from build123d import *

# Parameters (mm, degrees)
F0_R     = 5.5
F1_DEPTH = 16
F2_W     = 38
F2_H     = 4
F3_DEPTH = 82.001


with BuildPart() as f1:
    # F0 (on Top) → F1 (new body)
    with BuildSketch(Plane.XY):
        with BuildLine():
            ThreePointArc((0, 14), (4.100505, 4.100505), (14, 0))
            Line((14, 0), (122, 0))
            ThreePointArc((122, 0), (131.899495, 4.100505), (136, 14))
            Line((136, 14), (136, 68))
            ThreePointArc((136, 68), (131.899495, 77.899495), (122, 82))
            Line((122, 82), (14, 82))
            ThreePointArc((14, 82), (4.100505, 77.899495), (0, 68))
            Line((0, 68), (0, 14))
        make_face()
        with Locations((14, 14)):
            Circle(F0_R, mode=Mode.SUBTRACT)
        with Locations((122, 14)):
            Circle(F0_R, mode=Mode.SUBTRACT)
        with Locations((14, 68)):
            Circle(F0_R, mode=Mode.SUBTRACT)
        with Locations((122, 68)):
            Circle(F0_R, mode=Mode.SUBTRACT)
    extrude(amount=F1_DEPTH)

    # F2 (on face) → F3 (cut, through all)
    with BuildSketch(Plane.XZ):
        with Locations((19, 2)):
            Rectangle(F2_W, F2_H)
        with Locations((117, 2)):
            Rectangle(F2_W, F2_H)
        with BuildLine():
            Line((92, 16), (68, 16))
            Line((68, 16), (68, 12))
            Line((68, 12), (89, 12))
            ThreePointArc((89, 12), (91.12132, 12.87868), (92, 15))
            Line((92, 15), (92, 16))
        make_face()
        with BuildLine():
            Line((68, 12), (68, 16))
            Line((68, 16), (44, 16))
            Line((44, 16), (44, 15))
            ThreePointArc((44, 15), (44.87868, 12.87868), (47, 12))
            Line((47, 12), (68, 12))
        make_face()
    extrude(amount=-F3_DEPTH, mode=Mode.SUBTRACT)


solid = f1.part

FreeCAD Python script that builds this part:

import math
import FreeCAD as App
import Part
import Sketcher
from FreeCAD import Vector
Q = App.Units.Quantity

doc = App.newDocument("Part")
params = doc.addObject("Spreadsheet::Sheet", "Params")
for row, (alias, value) in enumerate([
    ("sketch1_diameter", "11 mm"),
    ("sketch1_radius", "14 mm"),
    ("sketch1_width", "108 mm"),
    ("sketch1_height", "54 mm"),
    ("pad1_length", "16 mm"),
    ("sketch2_radius", "3.000001 mm"),
    ("sketch2_width", "38 mm"),
    ("sketch2_width2", "48 mm"),
    ("sketch2_height", "4 mm"),
    ("sketch2_height2", "1 mm"),
], start=1):
    params.set(f"A{row}", alias)
    params.set(f"B{row}", "=" + value)
    params.setAlias(f"B{row}", alias)

body = doc.addObject("PartDesign::Body", "Body")

# Sketch on XY plane
sketch1 = body.newObject("Sketcher::SketchObject", "Sketch")
sketch1.AttachmentSupport = (doc.getObject("XY_Plane"), [""])
sketch1.MapMode = "FlatFace"
sketch1.addGeometry(Part.ArcOfCircle(Part.Circle(Vector(14, 14, 0), Vector(0, 0, 1), 14), math.radians(180), math.radians(270)), False)
sketch1.addGeometry(Part.LineSegment(Vector(14, 0, 0), Vector(122, 0, 0)), False)
sketch1.addGeometry(Part.ArcOfCircle(Part.Circle(Vector(122, 14, 0), Vector(0, 0, 1), 14), math.radians(-90), math.radians(0)), False)
sketch1.addGeometry(Part.LineSegment(Vector(136, 14, 0), Vector(136, 68, 0)), False)
sketch1.addGeometry(Part.ArcOfCircle(Part.Circle(Vector(122, 68, 0), Vector(0, 0, 1), 14), math.radians(0), math.radians(90)), False)
sketch1.addGeometry(Part.LineSegment(Vector(122, 82, 0), Vector(14, 82, 0)), False)
sketch1.addGeometry(Part.ArcOfCircle(Part.Circle(Vector(14, 68, 0), Vector(0, 0, 1), 14), math.radians(90), math.radians(180)), False)
sketch1.addGeometry(Part.LineSegment(Vector(0, 68, 0), Vector(0, 14, 0)), False)
sketch1.addGeometry(Part.Circle(Vector(14, 14, 0), Vector(0, 0, 1), 6), False)
sketch1.addGeometry(Part.Circle(Vector(122, 14, 0), Vector(0, 0, 1), 6), False)
sketch1.addGeometry(Part.Circle(Vector(14, 68, 0), Vector(0, 0, 1), 6), False)
sketch1.addGeometry(Part.Circle(Vector(122, 68, 0), Vector(0, 0, 1), 6), False)
sketch1.addConstraint(Sketcher.Constraint("Tangent", 0, 2, 1, 1))
sketch1.addConstraint(Sketcher.Constraint("Tangent", 1, 2, 2, 1))
sketch1.addConstraint(Sketcher.Constraint("Tangent", 2, 2, 3, 1))
sketch1.addConstraint(Sketcher.Constraint("Tangent", 3, 2, 4, 1))
sketch1.addConstraint(Sketcher.Constraint("Tangent", 4, 2, 5, 1))
sketch1.addConstraint(Sketcher.Constraint("Tangent", 5, 2, 6, 1))
sketch1.addConstraint(Sketcher.Constraint("Tangent", 6, 2, 7, 1))
sketch1.addConstraint(Sketcher.Constraint("Tangent", 7, 2, 0, 1))
sketch1.addConstraint(Sketcher.Constraint("Horizontal", 1))
sketch1.addConstraint(Sketcher.Constraint("Vertical", 3))
sketch1.addConstraint(Sketcher.Constraint("Horizontal", 5))
sketch1.addConstraint(Sketcher.Constraint("Vertical", 7))
sketch1.addConstraint(Sketcher.Constraint("Coincident", 8, 3, 0, 3))
sketch1.addConstraint(Sketcher.Constraint("Coincident", 9, 3, 2, 3))
sketch1.addConstraint(Sketcher.Constraint("Coincident", 10, 3, 6, 3))
sketch1.addConstraint(Sketcher.Constraint("Coincident", 11, 3, 4, 3))
sketch1.addConstraint(Sketcher.Constraint("Equal", 0, 2))
sketch1.addConstraint(Sketcher.Constraint("Equal", 2, 4))
sketch1.addConstraint(Sketcher.Constraint("Equal", 4, 6))
sketch1.addConstraint(Sketcher.Constraint("Equal", 8, 9))
sketch1.addConstraint(Sketcher.Constraint("Equal", 9, 10))
sketch1.addConstraint(Sketcher.Constraint("Equal", 10, 11))
sketch1.addConstraint(Sketcher.Constraint("PointOnObject", 0, 2, -1))
sketch1.addConstraint(Sketcher.Constraint("PointOnObject", 6, 2, -2))
sketch1.addConstraint(Sketcher.Constraint("Diameter", 8, Q("11 mm")))
sketch1.addConstraint(Sketcher.Constraint("Radius", 0, Q("14 mm")))
sketch1.addConstraint(Sketcher.Constraint("DistanceX", 1, 1, 1, 2, Q("108 mm")))
sketch1.addConstraint(Sketcher.Constraint("DistanceY", 3, 1, 3, 2, Q("54 mm")))
sketch1.setExpression("Constraints[24]", "Params.sketch1_diameter")
sketch1.setExpression("Constraints[25]", "Params.sketch1_radius")
sketch1.setExpression("Constraints[26]", "Params.sketch1_width")
sketch1.setExpression("Constraints[27]", "Params.sketch1_height")
pad1 = body.newObject("PartDesign::Pad", "Pad")
pad1.Profile = sketch1
pad1.setExpression("Length", "Params.pad1_length")

# Sketch on XZ plane
sketch2 = body.newObject("Sketcher::SketchObject", "Sketch001")
sketch2.AttachmentSupport = (doc.getObject("XZ_Plane"), [""])
sketch2.MapMode = "FlatFace"
sketch2.addGeometry(Part.LineSegment(Vector(0, 4, 0), Vector(0, 0, 0)), False)
sketch2.addGeometry(Part.LineSegment(Vector(0, 0, 0), Vector(38, 0, 0)), False)
sketch2.addGeometry(Part.LineSegment(Vector(38, 0, 0), Vector(38, 4, 0)), False)
sketch2.addGeometry(Part.LineSegment(Vector(38, 4, 0), Vector(0, 4, 0)), False)
sketch2.addGeometry(Part.LineSegment(Vector(98, 4, 0), Vector(98, 0, 0)), False)
sketch2.addGeometry(Part.LineSegment(Vector(98, 0, 0), Vector(136, 0, 0)), False)
sketch2.addGeometry(Part.LineSegment(Vector(136, 0, 0), Vector(136, 4, 0)), False)
sketch2.addGeometry(Part.LineSegment(Vector(136, 4, 0), Vector(98, 4, 0)), False)
sketch2.addGeometry(Part.LineSegment(Vector(92, 16, 0), Vector(44, 16, 0)), False)
sketch2.addGeometry(Part.LineSegment(Vector(44, 16, 0), Vector(44, 15, 0)), False)
sketch2.addGeometry(Part.ArcOfCircle(Part.Circle(Vector(47, 15, 0), Vector(0, 0, 1), 3), math.radians(-180), math.radians(-90)), False)
sketch2.addGeometry(Part.LineSegment(Vector(47, 12, 0), Vector(89, 12, 0)), False)
sketch2.addGeometry(Part.ArcOfCircle(Part.Circle(Vector(89, 15, 0), Vector(0, 0, 1), 3), math.radians(-90), math.radians(0)), False)
sketch2.addGeometry(Part.LineSegment(Vector(92, 15, 0), Vector(92, 16, 0)), False)
sketch2.addConstraint(Sketcher.Constraint("Coincident", 0, 2, 1, 1))
sketch2.addConstraint(Sketcher.Constraint("Coincident", 1, 2, 2, 1))
sketch2.addConstraint(Sketcher.Constraint("Coincident", 2, 2, 3, 1))
sketch2.addConstraint(Sketcher.Constraint("Coincident", 3, 2, 0, 1))
sketch2.addConstraint(Sketcher.Constraint("Coincident", 4, 2, 5, 1))
sketch2.addConstraint(Sketcher.Constraint("Coincident", 5, 2, 6, 1))
sketch2.addConstraint(Sketcher.Constraint("Coincident", 6, 2, 7, 1))
sketch2.addConstraint(Sketcher.Constraint("Coincident", 7, 2, 4, 1))
sketch2.addConstraint(Sketcher.Constraint("Coincident", 8, 2, 9, 1))
sketch2.addConstraint(Sketcher.Constraint("Tangent", 9, 2, 10, 1))
sketch2.addConstraint(Sketcher.Constraint("Tangent", 10, 2, 11, 1))
sketch2.addConstraint(Sketcher.Constraint("Tangent", 11, 2, 12, 1))
sketch2.addConstraint(Sketcher.Constraint("Tangent", 12, 2, 13, 1))
sketch2.addConstraint(Sketcher.Constraint("Coincident", 13, 2, 8, 1))
sketch2.addConstraint(Sketcher.Constraint("Vertical", 0))
sketch2.addConstraint(Sketcher.Constraint("Horizontal", 1))
sketch2.addConstraint(Sketcher.Constraint("Vertical", 2))
sketch2.addConstraint(Sketcher.Constraint("Horizontal", 3))
sketch2.addConstraint(Sketcher.Constraint("Vertical", 4))
sketch2.addConstraint(Sketcher.Constraint("Horizontal", 5))
sketch2.addConstraint(Sketcher.Constraint("Vertical", 6))
sketch2.addConstraint(Sketcher.Constraint("Horizontal", 7))
sketch2.addConstraint(Sketcher.Constraint("Horizontal", 8))
sketch2.addConstraint(Sketcher.Constraint("Vertical", 9))
sketch2.addConstraint(Sketcher.Constraint("Horizontal", 11))
sketch2.addConstraint(Sketcher.Constraint("Vertical", 13))
sketch2.addConstraint(Sketcher.Constraint("Coincident", 0, 2, -1, 1))
sketch2.addConstraint(Sketcher.Constraint("Equal", 10, 12))
sketch2.addConstraint(Sketcher.Constraint("PointOnObject", 4, 2, -1))
sketch2.addConstraint(Sketcher.Constraint("Horizontal", 3, 2, 6, 2))
sketch2.addConstraint(Sketcher.Constraint("Equal", 3, 5))
sketch2.addConstraint(Sketcher.Constraint("Radius", 10, Q("3.000001 mm")))
sketch2.addConstraint(Sketcher.Constraint("DistanceX", 1, 1, 1, 2, Q("38 mm")))
sketch2.addConstraint(Sketcher.Constraint("DistanceX", 8, 2, 8, 1, Q("48 mm")))
sketch2.addConstraint(Sketcher.Constraint("DistanceY", 0, 2, 0, 1, Q("4 mm")))
sketch2.addConstraint(Sketcher.Constraint("DistanceY", 9, 2, 9, 1, Q("1 mm")))
sketch2.addConstraint(Sketcher.Constraint("DistanceX", -1, 1, 10, 3, Q("47.000001 mm")))
sketch2.addConstraint(Sketcher.Constraint("DistanceY", -1, 1, 10, 3, Q("15.000001 mm")))
sketch2.addConstraint(Sketcher.Constraint("DistanceX", -1, 1, 4, 2, Q("98 mm")))
sketch2.setExpression("Constraints[31]", "Params.sketch2_radius")
sketch2.setExpression("Constraints[32]", "Params.sketch2_width")
sketch2.setExpression("Constraints[33]", "Params.sketch2_width2")
sketch2.setExpression("Constraints[34]", "Params.sketch2_height")
sketch2.setExpression("Constraints[35]", "Params.sketch2_height2")
pocket1 = body.newObject("PartDesign::Pocket", "Pocket")
pocket1.Profile = sketch2
pocket1.Type = "ThroughAll"

doc.recompute()
